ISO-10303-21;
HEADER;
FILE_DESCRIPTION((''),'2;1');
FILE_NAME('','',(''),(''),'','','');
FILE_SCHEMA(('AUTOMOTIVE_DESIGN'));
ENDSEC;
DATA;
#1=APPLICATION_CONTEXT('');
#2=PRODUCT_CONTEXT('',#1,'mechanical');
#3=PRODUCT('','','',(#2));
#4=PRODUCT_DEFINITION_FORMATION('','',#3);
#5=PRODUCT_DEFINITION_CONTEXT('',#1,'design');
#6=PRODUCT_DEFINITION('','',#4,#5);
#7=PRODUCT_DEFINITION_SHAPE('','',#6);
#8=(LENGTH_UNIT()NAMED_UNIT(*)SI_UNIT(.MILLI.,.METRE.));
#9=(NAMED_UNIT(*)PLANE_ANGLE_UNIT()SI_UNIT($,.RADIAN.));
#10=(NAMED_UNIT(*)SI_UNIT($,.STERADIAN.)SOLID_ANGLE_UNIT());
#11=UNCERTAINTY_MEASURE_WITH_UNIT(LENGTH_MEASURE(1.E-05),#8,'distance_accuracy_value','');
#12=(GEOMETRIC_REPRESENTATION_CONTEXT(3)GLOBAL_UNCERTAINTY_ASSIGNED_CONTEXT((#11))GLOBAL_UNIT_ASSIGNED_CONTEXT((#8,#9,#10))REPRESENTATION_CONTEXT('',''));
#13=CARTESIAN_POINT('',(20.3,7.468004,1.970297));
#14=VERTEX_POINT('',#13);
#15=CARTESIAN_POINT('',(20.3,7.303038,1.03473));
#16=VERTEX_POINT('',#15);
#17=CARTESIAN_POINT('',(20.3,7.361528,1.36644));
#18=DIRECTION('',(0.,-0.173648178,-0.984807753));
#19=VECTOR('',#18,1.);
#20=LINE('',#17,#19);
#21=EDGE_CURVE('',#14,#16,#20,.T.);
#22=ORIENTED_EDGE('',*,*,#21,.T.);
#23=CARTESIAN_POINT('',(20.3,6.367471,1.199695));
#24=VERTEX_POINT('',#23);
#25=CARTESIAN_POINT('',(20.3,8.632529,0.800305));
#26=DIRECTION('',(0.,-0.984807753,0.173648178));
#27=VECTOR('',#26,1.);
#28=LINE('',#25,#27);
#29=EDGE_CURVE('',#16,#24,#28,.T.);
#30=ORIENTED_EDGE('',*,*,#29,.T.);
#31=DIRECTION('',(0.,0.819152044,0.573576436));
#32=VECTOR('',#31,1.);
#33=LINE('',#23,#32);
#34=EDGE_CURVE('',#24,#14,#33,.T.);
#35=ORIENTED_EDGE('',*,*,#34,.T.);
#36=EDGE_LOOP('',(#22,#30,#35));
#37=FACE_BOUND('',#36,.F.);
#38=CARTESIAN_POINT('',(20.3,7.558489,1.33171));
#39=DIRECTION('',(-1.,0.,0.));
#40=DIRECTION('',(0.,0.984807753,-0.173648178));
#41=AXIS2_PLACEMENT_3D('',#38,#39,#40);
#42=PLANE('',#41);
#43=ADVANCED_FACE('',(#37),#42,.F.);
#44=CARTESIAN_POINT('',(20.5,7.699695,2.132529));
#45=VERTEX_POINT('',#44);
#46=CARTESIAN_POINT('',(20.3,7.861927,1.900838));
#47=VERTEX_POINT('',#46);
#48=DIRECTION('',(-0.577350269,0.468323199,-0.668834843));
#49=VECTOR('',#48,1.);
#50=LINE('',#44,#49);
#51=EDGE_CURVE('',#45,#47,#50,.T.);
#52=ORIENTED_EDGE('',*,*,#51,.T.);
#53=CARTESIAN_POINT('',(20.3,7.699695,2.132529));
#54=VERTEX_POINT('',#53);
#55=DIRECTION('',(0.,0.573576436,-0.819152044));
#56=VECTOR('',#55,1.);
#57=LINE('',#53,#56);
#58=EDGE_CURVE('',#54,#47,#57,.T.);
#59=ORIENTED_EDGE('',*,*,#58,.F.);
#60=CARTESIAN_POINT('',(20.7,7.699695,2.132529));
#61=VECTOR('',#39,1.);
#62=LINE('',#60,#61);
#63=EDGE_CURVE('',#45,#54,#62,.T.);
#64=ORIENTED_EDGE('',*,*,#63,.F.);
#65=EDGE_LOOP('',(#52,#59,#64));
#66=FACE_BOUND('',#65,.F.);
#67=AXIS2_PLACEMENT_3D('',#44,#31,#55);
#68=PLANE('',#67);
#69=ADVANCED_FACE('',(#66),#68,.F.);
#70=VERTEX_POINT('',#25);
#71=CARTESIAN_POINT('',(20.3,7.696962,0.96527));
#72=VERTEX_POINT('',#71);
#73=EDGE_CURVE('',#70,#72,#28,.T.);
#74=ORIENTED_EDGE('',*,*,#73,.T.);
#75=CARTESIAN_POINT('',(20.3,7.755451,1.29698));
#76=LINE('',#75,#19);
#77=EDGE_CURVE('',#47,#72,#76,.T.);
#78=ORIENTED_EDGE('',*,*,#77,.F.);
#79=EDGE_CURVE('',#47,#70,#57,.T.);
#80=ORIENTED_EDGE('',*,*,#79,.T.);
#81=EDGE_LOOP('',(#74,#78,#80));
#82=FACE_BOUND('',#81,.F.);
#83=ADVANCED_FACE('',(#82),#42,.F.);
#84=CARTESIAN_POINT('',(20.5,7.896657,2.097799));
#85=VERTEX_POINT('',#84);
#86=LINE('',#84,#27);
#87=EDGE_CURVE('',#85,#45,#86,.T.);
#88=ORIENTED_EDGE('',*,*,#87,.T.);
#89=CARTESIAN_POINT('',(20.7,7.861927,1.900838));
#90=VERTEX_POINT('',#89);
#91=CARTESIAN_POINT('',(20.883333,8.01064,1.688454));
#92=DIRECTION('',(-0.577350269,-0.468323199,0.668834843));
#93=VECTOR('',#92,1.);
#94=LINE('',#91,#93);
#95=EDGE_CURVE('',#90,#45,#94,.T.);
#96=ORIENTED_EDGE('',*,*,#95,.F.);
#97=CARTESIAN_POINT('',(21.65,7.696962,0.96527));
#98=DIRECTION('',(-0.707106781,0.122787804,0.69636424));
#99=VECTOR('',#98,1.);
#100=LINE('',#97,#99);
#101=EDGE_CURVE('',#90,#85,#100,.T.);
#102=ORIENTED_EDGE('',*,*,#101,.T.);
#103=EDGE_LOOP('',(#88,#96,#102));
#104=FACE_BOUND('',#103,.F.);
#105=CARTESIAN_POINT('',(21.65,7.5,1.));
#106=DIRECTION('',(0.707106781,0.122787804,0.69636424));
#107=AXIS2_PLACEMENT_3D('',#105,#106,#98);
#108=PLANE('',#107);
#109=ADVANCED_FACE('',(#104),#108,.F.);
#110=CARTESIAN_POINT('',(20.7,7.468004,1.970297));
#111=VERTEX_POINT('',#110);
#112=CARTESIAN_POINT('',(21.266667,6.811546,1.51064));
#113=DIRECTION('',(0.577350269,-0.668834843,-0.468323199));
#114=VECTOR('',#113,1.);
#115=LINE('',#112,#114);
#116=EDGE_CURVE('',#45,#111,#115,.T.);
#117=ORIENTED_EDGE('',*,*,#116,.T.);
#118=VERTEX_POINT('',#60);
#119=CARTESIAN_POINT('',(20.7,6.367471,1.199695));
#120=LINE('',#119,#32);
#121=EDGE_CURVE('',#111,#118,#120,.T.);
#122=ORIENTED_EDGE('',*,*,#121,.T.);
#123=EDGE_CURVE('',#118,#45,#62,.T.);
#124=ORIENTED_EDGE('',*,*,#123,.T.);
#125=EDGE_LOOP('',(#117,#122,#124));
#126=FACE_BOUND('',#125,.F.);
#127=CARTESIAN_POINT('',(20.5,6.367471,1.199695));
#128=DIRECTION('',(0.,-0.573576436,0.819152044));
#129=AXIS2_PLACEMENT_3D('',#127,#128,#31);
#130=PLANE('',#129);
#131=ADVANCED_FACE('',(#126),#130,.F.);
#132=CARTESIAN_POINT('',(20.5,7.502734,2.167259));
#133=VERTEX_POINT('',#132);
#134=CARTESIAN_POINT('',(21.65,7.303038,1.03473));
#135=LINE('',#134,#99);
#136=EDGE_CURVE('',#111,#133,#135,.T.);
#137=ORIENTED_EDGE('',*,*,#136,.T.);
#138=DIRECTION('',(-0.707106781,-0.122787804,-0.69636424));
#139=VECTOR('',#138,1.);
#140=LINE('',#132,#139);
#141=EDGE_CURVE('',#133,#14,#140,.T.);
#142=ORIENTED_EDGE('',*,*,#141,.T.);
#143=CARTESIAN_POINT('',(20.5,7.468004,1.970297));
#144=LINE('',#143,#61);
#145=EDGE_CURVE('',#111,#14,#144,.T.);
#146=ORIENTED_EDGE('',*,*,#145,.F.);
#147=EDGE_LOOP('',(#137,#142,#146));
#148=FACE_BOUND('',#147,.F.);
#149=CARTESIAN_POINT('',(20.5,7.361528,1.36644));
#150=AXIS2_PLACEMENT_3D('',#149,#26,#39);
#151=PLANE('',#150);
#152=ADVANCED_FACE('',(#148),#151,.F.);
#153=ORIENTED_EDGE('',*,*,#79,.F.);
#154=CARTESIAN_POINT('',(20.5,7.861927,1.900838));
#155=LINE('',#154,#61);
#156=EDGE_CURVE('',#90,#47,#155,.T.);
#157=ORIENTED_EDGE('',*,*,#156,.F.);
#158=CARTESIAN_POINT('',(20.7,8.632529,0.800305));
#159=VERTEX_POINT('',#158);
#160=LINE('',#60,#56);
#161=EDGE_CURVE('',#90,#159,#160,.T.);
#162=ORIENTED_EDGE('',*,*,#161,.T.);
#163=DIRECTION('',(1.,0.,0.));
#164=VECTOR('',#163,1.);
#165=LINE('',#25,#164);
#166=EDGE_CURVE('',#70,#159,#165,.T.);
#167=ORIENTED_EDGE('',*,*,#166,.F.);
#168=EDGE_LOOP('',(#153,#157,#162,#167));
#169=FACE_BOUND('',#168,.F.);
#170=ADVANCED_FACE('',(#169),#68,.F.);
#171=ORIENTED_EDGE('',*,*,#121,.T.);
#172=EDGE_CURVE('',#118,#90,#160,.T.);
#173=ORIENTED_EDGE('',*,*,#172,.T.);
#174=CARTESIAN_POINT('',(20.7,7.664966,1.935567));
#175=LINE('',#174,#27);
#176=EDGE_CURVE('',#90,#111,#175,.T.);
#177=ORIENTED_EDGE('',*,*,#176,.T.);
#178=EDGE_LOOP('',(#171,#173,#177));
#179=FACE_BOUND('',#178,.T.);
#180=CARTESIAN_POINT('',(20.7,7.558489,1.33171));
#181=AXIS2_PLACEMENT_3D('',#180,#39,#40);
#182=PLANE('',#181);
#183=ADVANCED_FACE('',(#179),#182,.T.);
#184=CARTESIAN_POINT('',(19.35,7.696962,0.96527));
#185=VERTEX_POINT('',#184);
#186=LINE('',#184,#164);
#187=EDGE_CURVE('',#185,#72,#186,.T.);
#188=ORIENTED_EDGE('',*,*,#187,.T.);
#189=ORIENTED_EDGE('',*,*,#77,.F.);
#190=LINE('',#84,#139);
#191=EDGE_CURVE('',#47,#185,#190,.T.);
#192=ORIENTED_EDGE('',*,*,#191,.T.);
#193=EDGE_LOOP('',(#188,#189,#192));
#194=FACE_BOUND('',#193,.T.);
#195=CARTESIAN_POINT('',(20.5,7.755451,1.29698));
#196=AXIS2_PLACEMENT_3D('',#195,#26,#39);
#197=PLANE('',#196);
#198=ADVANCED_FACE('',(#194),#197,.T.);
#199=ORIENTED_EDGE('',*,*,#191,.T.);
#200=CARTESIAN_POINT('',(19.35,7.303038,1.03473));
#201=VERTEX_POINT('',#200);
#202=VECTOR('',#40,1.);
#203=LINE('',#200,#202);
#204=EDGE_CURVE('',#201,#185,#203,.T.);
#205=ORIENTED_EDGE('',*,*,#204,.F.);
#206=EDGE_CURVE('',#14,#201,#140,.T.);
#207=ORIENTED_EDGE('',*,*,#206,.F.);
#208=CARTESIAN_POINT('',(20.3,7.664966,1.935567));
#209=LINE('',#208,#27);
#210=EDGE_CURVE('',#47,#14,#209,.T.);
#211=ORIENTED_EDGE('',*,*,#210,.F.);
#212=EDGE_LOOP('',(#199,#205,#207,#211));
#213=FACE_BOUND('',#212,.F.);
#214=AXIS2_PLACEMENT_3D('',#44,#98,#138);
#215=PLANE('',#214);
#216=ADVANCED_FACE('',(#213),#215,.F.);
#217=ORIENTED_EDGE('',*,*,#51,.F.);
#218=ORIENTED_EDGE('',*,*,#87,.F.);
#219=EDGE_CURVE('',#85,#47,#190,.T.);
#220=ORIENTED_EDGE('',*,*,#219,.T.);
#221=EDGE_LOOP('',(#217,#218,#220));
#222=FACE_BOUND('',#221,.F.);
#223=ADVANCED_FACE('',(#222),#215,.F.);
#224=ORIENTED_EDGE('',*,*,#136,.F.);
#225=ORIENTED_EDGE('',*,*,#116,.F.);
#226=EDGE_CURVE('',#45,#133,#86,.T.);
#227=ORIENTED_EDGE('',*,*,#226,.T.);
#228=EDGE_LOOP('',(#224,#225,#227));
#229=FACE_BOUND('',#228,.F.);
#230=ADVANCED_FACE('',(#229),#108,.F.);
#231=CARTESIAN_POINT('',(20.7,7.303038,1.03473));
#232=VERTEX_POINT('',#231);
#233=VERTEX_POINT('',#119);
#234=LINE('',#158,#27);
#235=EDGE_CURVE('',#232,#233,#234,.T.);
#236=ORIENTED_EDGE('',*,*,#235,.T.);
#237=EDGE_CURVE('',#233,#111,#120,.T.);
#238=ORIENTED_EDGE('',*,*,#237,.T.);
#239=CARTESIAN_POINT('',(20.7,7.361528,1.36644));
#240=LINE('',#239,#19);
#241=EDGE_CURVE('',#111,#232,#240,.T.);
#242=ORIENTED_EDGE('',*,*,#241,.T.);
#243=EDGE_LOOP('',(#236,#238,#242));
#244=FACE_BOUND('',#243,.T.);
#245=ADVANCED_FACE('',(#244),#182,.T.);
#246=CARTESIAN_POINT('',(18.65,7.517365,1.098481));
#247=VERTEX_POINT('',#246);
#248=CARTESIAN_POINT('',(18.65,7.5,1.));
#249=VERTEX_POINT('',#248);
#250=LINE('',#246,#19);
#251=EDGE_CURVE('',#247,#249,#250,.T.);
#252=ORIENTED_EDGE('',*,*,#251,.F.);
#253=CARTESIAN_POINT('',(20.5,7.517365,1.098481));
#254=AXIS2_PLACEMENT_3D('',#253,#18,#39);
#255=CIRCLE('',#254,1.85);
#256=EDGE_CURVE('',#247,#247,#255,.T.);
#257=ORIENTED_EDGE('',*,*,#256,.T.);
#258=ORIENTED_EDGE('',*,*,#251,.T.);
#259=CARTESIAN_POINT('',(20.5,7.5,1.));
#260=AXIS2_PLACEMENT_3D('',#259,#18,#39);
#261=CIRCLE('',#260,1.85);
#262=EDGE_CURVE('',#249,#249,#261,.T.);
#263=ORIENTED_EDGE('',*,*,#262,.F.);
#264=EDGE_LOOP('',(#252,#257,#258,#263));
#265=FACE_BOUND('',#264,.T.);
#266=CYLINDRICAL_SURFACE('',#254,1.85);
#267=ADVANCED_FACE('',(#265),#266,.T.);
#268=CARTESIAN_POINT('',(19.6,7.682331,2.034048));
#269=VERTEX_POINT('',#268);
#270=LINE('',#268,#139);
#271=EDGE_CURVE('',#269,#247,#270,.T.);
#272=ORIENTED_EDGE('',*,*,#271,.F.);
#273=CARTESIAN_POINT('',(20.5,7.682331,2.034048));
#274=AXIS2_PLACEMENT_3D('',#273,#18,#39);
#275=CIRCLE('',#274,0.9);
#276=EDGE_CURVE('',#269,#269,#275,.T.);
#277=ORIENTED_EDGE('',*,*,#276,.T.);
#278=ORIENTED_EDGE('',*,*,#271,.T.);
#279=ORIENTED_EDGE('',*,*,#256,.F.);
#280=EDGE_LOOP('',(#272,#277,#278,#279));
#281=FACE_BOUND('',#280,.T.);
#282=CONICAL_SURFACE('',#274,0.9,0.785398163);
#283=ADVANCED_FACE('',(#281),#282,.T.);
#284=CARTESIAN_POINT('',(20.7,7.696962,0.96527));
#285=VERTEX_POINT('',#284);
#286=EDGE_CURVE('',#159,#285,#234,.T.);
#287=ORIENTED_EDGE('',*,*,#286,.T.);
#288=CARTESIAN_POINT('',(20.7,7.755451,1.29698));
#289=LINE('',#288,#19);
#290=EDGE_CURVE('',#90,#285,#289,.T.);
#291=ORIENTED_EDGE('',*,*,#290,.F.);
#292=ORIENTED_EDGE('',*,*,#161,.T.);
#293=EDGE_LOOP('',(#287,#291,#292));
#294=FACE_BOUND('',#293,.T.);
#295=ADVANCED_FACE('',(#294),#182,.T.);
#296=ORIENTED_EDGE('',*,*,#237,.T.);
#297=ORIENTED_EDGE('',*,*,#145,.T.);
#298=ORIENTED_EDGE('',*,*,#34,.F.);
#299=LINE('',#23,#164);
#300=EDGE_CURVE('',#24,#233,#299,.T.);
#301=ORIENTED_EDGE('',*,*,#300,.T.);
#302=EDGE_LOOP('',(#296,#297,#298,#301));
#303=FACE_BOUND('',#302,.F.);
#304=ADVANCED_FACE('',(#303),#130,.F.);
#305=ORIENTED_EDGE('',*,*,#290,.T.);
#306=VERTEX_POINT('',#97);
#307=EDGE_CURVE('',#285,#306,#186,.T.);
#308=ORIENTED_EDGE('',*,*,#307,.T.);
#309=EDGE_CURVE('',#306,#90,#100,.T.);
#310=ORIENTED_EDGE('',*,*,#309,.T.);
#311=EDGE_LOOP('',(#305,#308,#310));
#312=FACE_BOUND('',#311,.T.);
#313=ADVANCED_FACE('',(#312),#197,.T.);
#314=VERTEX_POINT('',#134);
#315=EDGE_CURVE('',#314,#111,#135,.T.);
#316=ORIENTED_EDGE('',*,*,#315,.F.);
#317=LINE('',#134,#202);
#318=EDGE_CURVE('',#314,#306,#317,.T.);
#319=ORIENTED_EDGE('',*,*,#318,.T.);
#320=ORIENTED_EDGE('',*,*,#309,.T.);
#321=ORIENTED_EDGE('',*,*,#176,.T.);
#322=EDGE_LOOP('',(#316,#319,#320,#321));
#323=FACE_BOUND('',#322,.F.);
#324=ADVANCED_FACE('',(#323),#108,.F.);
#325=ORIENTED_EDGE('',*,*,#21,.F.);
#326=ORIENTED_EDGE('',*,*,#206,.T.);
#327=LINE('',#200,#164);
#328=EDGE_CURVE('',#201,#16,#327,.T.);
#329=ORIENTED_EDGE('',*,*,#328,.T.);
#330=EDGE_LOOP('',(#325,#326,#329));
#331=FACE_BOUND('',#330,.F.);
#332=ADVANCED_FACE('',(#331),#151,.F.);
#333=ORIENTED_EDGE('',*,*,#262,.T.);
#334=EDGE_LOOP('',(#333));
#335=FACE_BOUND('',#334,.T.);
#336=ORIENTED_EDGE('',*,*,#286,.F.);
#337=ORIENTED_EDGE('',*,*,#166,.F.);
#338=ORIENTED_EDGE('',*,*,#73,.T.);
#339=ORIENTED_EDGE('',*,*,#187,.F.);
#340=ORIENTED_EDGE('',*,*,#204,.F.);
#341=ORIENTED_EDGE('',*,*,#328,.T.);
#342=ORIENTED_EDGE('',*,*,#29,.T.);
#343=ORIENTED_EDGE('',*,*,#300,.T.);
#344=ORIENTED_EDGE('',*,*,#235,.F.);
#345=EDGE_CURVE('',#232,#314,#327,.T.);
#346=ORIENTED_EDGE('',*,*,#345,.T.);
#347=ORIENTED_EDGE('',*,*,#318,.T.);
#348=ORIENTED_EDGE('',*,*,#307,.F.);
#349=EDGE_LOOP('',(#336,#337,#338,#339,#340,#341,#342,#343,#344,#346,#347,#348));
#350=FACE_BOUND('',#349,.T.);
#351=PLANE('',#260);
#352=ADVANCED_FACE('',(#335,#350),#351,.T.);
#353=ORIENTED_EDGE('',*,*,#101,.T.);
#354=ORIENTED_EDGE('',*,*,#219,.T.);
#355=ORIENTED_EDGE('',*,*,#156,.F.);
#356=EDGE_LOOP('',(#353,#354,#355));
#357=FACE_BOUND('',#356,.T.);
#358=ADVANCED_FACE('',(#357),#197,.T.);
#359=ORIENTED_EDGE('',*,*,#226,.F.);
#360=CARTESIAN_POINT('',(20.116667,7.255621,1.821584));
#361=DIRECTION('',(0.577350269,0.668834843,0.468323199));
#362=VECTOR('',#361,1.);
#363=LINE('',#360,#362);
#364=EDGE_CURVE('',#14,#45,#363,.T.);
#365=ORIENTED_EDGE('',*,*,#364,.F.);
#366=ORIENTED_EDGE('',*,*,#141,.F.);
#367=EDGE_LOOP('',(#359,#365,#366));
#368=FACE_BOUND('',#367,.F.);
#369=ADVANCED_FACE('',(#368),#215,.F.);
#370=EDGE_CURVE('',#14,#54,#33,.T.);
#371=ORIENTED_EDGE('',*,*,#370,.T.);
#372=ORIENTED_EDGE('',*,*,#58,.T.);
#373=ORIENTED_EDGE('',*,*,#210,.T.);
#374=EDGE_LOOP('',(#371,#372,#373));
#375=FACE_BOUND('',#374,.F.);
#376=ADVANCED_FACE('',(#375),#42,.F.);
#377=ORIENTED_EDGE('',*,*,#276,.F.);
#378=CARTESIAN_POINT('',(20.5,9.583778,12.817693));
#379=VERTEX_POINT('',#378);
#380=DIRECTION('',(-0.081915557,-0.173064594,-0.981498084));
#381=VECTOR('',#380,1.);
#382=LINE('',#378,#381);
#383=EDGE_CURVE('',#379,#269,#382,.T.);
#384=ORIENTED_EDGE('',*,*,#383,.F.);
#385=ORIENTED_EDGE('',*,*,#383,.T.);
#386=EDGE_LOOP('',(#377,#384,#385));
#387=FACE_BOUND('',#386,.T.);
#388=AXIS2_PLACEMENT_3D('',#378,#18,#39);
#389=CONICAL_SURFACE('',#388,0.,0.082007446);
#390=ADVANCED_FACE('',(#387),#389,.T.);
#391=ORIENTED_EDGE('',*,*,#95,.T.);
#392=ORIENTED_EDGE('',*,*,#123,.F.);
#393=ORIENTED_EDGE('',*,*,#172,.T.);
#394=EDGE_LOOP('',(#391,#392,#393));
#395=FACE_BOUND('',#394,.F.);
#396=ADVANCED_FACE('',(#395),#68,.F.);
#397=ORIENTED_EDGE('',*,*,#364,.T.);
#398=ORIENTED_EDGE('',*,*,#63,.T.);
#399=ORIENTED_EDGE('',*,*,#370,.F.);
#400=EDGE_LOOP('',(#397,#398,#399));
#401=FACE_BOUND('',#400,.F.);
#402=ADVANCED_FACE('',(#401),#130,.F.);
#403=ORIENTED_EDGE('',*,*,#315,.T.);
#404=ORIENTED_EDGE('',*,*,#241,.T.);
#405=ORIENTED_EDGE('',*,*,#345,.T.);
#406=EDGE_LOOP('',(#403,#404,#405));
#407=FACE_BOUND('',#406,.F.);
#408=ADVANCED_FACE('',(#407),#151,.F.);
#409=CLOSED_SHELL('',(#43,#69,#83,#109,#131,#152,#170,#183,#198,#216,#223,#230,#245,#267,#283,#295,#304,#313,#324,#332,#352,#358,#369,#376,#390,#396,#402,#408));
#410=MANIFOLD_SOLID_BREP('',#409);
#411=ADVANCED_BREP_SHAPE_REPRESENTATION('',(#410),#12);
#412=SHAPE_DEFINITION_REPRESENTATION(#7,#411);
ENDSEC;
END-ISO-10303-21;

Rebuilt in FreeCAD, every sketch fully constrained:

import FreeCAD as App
import Part
import Sketcher

V = App.Vector
Q = App.Units.Quantity

doc = App.newDocument("Part")
body = doc.addObject("PartDesign::Body", "Body")

# Sketch on XZ plane
sketch1 = doc.addObject("Sketcher::SketchObject", "Sketch")
body.addObject(sketch1)
sketch1.AttachmentSupport = (doc.XZ_Plane, [""])
sketch1.MapMode = "FlatFace"
sketch1.addGeometry([
    Part.LineSegment(V(0, 0, 0), V(0, -12, 0)),  # 0
    Part.LineSegment(V(0, -12, 0), V(0.9, -1.05, 0)),  # 1
    Part.LineSegment(V(0.9, -1.05, 0), V(1.85, -0.1, 0)),  # 2
    Part.LineSegment(V(1.85, -0.1, 0), V(1.85, 0, 0)),  # 3
    Part.LineSegment(V(1.85, 0, 0), V(0, 0, 0)),  # 4
], False)
sketch1.addConstraint([
    Sketcher.Constraint("Coincident", 0, 2, 1, 1),
    Sketcher.Constraint("Coincident", 1, 2, 2, 1),
    Sketcher.Constraint("Coincident", 2, 2, 3, 1),
    Sketcher.Constraint("Coincident", 3, 2, 4, 1),
    Sketcher.Constraint("Coincident", 4, 2, 0, 1),
    Sketcher.Constraint("Vertical", 0),
    Sketcher.Constraint("Vertical", 3),
    Sketcher.Constraint("Horizontal", 4),
    Sketcher.Constraint("Coincident", 4, 2, -1, 1),
    Sketcher.Constraint("DistanceY", 0, 2, 0, 1, 12.0),
    Sketcher.Constraint("Angle", 2, Q("45 deg")),
    Sketcher.Constraint("DistanceY", 3, 1, 3, 2, 0.1),
    Sketcher.Constraint("DistanceX", 4, 2, 4, 1, 1.85),
    Sketcher.Constraint("DistanceX", -1, 1, 1, 2, 0.9),
])
revolution = doc.addObject("PartDesign::Revolution", "Revolution")
body.addObject(revolution)
revolution.Profile = sketch1
revolution.ReferenceAxis = (sketch1, ["V_Axis"])
revolution.Angle = 360

# Sketch on XZ plane
sketch2 = doc.addObject("Sketcher::SketchObject", "Sketch001")
body.addObject(sketch2)
sketch2.AttachmentSupport = (doc.XZ_Plane, [""])
sketch2.MapMode = "FlatFace"
sketch2.addGeometry([
    Part.LineSegment(V(-1.1, 0, 0), V(0, -1.1, 0)),
    Part.LineSegment(V(0, -1.1, 0), V(1.1, 0, 0)),
    Part.LineSegment(V(1.1, 0, 0), V(-1.1, 0, 0)),
], False)
sketch2.addConstraint([
    Sketcher.Constraint("Coincident", 0, 2, 1, 1),
    Sketcher.Constraint("Coincident", 1, 2, 2, 1),
    Sketcher.Constraint("Coincident", 2, 2, 0, 1),
    Sketcher.Constraint("Horizontal", 2),
    Sketcher.Constraint("Symmetric", 1, 2, 2, 2, -1, 1),
    Sketcher.Constraint("PointOnObject", 0, 2, -2),
    Sketcher.Constraint("Perpendicular", 0, 1),
    Sketcher.Constraint("DistanceX", 2, 2, 2, 1, 2.3),
])
pocket1 = doc.addObject("PartDesign::Pocket", "Pocket")
body.addObject(pocket1)
pocket1.Profile = sketch2
pocket1.Length = 0.4
pocket1.Midplane = True
doc.recompute()

polarpattern = doc.addObject("PartDesign::PolarPattern", "PolarPattern")
body.addObject(polarpattern)
polarpattern.Originals = [pocket1]
polarpattern.Axis = (doc.Z_Axis, [""])
polarpattern.Angle = 90
polarpattern.Occurrences = 2
body.Tip = polarpattern
body2 = doc.addObject("PartDesign::Body", "Body001")
doc.recompute()

body.Placement = App.Placement(V(0, 0, 0), App.Rotation(V(1, 0, 0), 190))
boolean = doc.addObject("PartDesign::Boolean", "Boolean")
body2.addObject(boolean)
boolean.Type = "Fuse"
boolean.addObjects([body])
body3 = doc.addObject("PartDesign::Body", "Body002")
doc.recompute()

body2.Placement = App.Placement(V(20.5, 7.5, 1), App.Rotation(V(0, 0, 1), 180))
boolean2 = doc.addObject("PartDesign::Boolean", "Boolean001")
body3.addObject(boolean2)
boolean2.Type = "Fuse"
boolean2.addObjects([body2])

doc.recompute()
